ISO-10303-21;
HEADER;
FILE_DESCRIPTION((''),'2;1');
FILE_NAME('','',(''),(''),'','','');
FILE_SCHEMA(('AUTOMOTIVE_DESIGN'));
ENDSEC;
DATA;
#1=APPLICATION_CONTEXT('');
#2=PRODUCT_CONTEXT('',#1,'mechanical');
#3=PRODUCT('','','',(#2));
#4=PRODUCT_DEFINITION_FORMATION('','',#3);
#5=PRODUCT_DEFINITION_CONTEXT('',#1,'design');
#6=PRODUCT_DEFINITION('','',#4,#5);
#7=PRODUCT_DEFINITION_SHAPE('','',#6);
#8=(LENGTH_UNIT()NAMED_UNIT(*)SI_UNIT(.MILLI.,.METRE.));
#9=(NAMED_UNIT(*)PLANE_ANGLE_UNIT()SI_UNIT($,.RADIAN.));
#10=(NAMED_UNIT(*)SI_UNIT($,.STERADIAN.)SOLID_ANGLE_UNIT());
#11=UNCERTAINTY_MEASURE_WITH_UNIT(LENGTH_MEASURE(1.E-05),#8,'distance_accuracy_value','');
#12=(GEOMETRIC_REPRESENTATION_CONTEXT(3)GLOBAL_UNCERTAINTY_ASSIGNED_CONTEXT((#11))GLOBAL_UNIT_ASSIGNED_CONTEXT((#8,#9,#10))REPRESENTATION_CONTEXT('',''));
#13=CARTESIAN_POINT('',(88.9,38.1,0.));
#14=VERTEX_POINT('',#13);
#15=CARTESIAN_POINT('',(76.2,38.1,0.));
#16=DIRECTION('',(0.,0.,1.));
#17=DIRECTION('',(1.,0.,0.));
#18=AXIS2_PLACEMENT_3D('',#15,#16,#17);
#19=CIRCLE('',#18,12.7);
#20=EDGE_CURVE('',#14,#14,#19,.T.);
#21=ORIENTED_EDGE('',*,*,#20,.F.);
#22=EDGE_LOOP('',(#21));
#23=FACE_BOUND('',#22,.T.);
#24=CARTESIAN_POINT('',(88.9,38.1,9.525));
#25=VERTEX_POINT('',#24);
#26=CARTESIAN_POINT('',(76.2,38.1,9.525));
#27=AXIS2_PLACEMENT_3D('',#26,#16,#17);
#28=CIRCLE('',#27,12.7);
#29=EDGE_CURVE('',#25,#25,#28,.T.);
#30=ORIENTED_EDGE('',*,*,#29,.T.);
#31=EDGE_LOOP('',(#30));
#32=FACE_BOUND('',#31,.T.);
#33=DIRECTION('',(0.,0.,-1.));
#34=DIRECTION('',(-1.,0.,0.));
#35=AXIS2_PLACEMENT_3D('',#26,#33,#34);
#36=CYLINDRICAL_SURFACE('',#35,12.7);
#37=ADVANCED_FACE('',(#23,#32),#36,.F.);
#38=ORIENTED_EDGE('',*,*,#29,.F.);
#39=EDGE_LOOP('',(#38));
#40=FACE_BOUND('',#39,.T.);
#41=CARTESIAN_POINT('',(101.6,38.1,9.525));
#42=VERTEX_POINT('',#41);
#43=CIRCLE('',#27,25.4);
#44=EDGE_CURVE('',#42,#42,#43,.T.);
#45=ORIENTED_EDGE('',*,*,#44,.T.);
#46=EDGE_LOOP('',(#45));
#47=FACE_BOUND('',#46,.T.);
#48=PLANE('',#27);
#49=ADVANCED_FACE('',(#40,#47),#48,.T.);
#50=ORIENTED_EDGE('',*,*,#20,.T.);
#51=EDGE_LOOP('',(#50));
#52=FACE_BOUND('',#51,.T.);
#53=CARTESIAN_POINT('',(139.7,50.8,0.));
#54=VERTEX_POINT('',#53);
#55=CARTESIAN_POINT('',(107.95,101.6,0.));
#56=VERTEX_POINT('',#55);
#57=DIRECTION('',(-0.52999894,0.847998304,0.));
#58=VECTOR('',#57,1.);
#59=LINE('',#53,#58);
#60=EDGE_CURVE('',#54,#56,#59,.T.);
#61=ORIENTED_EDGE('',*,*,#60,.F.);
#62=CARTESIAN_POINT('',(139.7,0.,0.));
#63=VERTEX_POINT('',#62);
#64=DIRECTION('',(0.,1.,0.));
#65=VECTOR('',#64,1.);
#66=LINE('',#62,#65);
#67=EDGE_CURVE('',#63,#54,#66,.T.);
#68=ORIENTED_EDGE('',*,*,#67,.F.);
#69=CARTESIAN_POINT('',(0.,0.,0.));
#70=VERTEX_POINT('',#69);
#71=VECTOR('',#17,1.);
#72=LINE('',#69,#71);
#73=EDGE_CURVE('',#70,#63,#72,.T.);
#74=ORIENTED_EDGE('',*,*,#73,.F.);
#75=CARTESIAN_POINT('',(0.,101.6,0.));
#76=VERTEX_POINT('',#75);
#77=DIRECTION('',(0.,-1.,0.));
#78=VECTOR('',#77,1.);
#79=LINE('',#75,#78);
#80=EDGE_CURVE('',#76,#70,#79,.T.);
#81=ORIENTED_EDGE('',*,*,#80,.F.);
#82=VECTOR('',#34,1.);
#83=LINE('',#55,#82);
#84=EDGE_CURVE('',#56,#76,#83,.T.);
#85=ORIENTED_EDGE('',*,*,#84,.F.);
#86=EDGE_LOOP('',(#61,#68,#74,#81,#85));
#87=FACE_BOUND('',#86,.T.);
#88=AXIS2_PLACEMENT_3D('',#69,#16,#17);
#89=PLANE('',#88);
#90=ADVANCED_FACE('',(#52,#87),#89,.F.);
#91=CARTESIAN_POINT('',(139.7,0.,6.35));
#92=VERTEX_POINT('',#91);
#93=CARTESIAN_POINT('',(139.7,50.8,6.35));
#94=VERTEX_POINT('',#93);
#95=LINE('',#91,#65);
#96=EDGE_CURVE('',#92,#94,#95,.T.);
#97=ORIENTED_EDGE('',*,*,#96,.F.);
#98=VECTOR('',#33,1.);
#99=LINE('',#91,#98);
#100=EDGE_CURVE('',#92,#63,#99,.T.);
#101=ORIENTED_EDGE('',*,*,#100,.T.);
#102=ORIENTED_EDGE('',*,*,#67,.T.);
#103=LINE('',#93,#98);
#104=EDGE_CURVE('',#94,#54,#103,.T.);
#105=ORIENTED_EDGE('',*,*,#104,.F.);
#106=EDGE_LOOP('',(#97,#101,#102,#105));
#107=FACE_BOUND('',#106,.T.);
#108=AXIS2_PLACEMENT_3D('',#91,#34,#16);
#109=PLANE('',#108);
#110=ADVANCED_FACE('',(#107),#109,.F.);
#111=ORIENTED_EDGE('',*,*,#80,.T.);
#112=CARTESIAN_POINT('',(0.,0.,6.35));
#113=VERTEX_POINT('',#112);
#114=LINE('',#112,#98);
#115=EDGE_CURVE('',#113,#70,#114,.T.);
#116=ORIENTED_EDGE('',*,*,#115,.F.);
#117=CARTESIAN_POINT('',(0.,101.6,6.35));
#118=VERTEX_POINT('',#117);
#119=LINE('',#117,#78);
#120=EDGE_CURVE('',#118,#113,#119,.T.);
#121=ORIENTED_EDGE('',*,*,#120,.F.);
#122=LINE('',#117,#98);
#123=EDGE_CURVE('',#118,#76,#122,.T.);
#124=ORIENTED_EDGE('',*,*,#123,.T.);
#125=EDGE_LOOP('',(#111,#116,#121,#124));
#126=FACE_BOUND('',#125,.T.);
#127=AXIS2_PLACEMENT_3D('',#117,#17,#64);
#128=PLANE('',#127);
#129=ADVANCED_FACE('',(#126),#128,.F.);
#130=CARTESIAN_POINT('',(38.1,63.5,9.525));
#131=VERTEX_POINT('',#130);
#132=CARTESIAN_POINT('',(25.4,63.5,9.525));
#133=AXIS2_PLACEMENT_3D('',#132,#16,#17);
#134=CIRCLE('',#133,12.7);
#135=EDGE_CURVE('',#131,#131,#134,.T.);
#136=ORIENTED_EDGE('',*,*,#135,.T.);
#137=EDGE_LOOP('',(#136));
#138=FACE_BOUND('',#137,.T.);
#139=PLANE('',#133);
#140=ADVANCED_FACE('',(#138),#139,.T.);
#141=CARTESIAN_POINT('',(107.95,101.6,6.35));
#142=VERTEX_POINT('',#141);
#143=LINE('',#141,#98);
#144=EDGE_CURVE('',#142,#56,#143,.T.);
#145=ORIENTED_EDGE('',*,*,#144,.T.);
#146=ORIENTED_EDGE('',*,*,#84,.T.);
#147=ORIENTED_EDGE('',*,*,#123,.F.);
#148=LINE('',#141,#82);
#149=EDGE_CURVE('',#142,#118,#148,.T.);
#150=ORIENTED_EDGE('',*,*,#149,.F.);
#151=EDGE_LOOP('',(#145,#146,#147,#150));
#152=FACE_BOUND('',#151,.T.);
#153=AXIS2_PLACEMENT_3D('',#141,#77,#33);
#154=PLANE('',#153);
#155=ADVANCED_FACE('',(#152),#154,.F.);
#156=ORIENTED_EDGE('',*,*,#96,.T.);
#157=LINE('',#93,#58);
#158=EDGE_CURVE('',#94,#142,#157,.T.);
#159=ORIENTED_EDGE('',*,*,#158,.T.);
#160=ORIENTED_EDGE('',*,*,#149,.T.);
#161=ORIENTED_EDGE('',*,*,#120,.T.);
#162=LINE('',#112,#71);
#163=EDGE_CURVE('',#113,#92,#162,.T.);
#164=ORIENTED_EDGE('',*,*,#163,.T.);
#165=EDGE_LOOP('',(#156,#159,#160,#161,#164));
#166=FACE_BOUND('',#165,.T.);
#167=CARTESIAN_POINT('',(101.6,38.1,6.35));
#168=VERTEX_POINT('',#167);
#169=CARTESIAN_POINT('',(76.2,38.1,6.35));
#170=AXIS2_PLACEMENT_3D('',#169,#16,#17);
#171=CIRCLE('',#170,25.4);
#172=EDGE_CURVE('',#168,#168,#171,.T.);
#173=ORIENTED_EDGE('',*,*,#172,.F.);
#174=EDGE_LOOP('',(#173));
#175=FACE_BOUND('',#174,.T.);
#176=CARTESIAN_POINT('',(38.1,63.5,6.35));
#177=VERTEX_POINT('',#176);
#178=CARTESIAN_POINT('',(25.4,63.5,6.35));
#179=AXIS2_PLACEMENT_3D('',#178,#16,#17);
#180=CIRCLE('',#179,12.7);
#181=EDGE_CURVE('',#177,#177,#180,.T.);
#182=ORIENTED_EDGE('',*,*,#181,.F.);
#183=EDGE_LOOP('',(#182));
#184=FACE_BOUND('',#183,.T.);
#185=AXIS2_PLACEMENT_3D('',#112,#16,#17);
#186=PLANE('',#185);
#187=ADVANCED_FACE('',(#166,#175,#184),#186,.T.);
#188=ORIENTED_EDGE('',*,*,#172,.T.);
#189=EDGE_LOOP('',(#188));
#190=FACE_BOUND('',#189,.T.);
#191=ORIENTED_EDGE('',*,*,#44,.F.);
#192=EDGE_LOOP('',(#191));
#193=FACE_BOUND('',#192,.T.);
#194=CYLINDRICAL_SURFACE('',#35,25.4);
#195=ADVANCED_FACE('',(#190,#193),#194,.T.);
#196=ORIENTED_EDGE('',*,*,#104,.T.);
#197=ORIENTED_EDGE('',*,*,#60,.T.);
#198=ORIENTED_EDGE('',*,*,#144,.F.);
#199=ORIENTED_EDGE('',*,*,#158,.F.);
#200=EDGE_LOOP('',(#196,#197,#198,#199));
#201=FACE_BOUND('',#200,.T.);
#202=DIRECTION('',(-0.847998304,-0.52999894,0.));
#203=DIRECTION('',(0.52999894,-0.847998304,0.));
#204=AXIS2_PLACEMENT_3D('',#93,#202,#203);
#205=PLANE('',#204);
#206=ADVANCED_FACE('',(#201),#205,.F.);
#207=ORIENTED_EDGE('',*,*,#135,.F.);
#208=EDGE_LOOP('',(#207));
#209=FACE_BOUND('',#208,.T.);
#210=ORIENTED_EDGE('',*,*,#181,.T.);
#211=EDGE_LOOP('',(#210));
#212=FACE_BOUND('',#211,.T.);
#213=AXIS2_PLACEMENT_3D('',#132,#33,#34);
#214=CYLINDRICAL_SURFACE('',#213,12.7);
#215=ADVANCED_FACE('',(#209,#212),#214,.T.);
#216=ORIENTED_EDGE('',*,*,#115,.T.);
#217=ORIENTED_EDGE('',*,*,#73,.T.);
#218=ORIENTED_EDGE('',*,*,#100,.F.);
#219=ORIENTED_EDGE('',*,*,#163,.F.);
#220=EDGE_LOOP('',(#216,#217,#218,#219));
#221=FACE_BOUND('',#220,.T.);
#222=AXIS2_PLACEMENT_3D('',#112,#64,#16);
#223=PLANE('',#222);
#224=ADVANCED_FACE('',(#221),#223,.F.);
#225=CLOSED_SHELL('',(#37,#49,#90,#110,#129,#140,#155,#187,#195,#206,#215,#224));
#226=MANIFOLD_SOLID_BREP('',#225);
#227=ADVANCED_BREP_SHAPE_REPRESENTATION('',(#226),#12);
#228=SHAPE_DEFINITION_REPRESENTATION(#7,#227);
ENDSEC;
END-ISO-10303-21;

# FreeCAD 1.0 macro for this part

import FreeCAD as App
import Part
import Sketcher

V = App.Vector
Q = App.Units.Quantity

doc = App.newDocument("Part")
body = doc.addObject("PartDesign::Body", "Body")

sketch1 = body.newObject("Sketcher::SketchObject", "Sketch")
sketch1.AttachmentSupport = (doc.getObject("XY_Plane"), [""])
sketch1.MapMode = "FlatFace"
sketch1.addGeometry([
    Part.LineSegment(V(0, 0, 0), V(140, 0, 0)),
    Part.LineSegment(V(140, 0, 0), V(140, 51, 0)),
    Part.LineSegment(V(140, 51, 0), V(108, 102, 0)),
    Part.LineSegment(V(108, 102, 0), V(0, 102, 0)),
    Part.LineSegment(V(0, 102, 0), V(0, 0, 0)),
], False)
sketch1.addConstraint([
    Sketcher.Constraint("Coincident", 0, 2, 1, 1),
    Sketcher.Constraint("Coincident", 1, 2, 2, 1),
    Sketcher.Constraint("Coincident", 2, 2, 3, 1),
    Sketcher.Constraint("Coincident", 3, 2, 4, 1),
    Sketcher.Constraint("Coincident", 4, 2, 0, 1),
    Sketcher.Constraint("Horizontal", 0),
    Sketcher.Constraint("Vertical", 1),
    Sketcher.Constraint("Horizontal", 3),
    Sketcher.Constraint("Vertical", 4),
    Sketcher.Constraint("Coincident", 4, 2, -1, 1),
    Sketcher.Constraint("DistanceY", 1, 1, 1, 2, Q("2 in")),
    Sketcher.Constraint("DistanceY", 4, 2, 4, 1, Q("4 in")),
    Sketcher.Constraint("DistanceX", 0, 1, 0, 2, Q("5.5 in")),
    Sketcher.Constraint("DistanceX", 3, 2, 3, 1, Q("4.25 in")),
])
pad1 = body.newObject("PartDesign::Pad", "Pad")
pad1.Profile = sketch1
pad1.Length = Q("0.25 in")

sketch2 = body.newObject("Sketcher::SketchObject", "Sketch001")
sketch2.AttachmentSupport = (doc.getObject("XY_Plane"), [""])
sketch2.MapMode = "FlatFace"
sketch2.AttachmentOffset = App.Placement(V(0, 0, 0.25 * 25.4), App.Rotation())
sketch2.addGeometry([
    Part.Circle(V(25, 64, 0), V(0, 0, 1), 13),
    Part.Circle(V(76, 38, 0), V(0, 0, 1), 25),
    Part.Circle(V(76, 38, 0), V(0, 0, 1), 13),
], False)
sketch2.addConstraint([
    Sketcher.Constraint("Coincident", 2, 3, 1, 3),
    Sketcher.Constraint("Equal", 0, 2),
    Sketcher.Constraint("Diameter", 0, Q("1 in")),
    Sketcher.Constraint("Diameter", 1, Q("2 in")),
    Sketcher.Constraint("DistanceX", -1, 1, 0, 3, Q("1 in")),
    Sketcher.Constraint("DistanceX", -1, 1, 1, 3, Q("3 in")),
    Sketcher.Constraint("DistanceY", 1, 3, 0, 3, Q("1 in")),
    Sketcher.Constraint("DistanceY", -1, 1, 0, 3, Q("2.5 in")),
])
pad2 = body.newObject("PartDesign::Pad", "Pad001")
pad2.Profile = sketch2
pad2.Length = Q("0.125 in")

sketch3 = body.newObject("Sketcher::SketchObject", "Sketch002")
sketch3.AttachmentSupport = (doc.getObject("XY_Plane"), [""])
sketch3.MapMode = "FlatFace"
sketch3.AttachmentOffset = App.Placement(V(0, 0, 0.25 * 25.4), App.Rotation())
sketch3.addGeometry(Part.Circle(V(76, 38, 0), V(0, 0, 1), 13), False)
sketch3.addConstraint([
    Sketcher.Constraint("Diameter", 0, Q("1 in")),
    Sketcher.Constraint("DistanceX", -1, 1, 0, 3, Q("3 in")),
    Sketcher.Constraint("DistanceY", -1, 1, 0, 3, Q("1.5 in")),
])
pocket1 = body.newObject("PartDesign::Pocket", "Pocket")
pocket1.Profile = sketch3
pocket1.Length = Q("5 in")

doc.recompute()
